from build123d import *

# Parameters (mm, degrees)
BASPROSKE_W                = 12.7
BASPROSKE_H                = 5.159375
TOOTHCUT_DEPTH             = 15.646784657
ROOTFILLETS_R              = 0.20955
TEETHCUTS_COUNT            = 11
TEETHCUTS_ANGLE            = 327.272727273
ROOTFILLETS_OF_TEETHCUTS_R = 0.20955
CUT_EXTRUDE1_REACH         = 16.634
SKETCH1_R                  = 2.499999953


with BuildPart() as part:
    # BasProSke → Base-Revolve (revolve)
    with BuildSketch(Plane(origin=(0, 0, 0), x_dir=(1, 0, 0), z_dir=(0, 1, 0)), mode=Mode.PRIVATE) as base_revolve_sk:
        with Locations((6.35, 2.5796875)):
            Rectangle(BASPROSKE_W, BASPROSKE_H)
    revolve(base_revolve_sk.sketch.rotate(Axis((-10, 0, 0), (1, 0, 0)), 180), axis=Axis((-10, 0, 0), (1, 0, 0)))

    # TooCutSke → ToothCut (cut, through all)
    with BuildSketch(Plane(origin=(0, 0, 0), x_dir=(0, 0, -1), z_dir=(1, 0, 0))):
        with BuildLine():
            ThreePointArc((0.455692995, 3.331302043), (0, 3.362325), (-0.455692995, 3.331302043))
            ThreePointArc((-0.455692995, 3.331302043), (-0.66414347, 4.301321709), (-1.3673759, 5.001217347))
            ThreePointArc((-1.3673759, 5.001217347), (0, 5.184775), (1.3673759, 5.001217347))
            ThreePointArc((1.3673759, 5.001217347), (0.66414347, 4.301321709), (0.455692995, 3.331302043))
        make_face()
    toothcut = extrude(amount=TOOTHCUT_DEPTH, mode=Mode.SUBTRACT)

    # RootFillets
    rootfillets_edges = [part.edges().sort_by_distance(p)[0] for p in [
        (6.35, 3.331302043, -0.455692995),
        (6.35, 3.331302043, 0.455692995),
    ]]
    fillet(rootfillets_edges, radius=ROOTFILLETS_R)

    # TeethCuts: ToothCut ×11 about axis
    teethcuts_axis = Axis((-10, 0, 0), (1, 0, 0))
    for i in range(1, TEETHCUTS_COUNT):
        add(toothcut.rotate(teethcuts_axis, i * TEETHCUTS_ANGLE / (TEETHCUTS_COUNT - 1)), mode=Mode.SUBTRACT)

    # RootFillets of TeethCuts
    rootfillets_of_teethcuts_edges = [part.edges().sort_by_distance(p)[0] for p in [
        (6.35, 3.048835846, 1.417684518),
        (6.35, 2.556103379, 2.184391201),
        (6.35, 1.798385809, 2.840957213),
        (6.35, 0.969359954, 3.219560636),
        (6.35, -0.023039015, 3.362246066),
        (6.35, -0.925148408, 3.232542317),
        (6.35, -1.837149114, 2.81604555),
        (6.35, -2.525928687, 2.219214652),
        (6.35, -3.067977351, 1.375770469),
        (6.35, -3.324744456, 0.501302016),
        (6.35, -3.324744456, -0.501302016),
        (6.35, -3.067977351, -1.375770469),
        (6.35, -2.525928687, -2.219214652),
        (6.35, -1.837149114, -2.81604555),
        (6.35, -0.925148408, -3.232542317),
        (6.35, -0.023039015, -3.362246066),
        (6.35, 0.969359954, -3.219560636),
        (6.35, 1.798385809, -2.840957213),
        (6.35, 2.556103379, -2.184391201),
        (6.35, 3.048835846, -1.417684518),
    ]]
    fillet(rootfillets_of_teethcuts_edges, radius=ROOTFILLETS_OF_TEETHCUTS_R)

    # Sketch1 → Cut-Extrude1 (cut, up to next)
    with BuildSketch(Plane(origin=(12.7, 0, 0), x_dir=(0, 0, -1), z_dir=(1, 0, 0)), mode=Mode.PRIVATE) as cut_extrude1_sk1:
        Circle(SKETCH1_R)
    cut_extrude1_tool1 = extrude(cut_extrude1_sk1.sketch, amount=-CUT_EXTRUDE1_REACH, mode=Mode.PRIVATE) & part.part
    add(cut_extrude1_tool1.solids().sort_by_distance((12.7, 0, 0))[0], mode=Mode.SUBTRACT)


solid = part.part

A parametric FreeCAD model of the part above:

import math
import FreeCAD as App
import Part
import Sketcher

V = App.Vector
Q = App.Units.Quantity


def edges_at(feature, points):
    """Names of the edges that pass closest to the given points."""
    edges = feature.Shape.Edges
    near = lambda p: min(range(len(edges)), key=lambda i: edges[i].distToShape(Part.Vertex(*p))[0])
    return sorted({f"Edge{near(p) + 1}" for p in points})


def add_polygon(sketch, points):
    """Adds a closed chain of lines whose ends are joined by coincident constraints."""
    first, n = sketch.GeometryCount, len(points)
    for a, b in zip(points, points[1:] + points[:1]):
        sketch.addGeometry(Part.LineSegment(App.Vector(*a, 0), App.Vector(*b, 0)), False)
    for i in range(n):
        sketch.addConstraint(Sketcher.Constraint("Coincident", first + i, 2, first + (i + 1) % n, 1))

doc = App.newDocument("Part")
params = doc.addObject("Spreadsheet::Sheet", "Params")
for row, (alias, value) in enumerate([
    ("sketch1_width", "0.5 in"),
    ("sketch1_height", "0.203125 in"),
    ("revolution_angle", "360 deg"),
    ("fillet_radius", "0.20955 mm"),
    ("fillet2_radius", "0.20955 mm"),
], start=1):
    params.set(f"A{row}", alias)
    params.set(f"B{row}", "=" + value)
    params.setAlias(f"B{row}", alias)

body = doc.addObject("PartDesign::Body", "Body")

# Sketch on XZ plane
sketch1 = doc.addObject("Sketcher::SketchObject", "Sketch")
body.addObject(sketch1)
sketch1.AttachmentSupport = (doc.XZ_Plane, [""])
sketch1.MapMode = "FlatFace"
add_polygon(sketch1, [(0, -5.159375), (0, 0), (12.7, 0), (12.7, -5.159375)])  # lines 0-3
sketch1.addConstraint(Sketcher.Constraint("Vertical", 0))
sketch1.addConstraint(Sketcher.Constraint("Horizontal", 1))
sketch1.addConstraint(Sketcher.Constraint("Vertical", 2))
sketch1.addConstraint(Sketcher.Constraint("Horizontal", 3))
sketch1.addConstraint(Sketcher.Constraint("Coincident", 0, 2, -1, 1))
sketch1.addConstraint(Sketcher.Constraint("DistanceX", 1, 1, 1, 2, Q("0.5 in")))
sketch1.addConstraint(Sketcher.Constraint("DistanceY", 0, 1, 0, 2, Q("0.203125 in")))
sketch1.setExpression("Constraints[9]", "Params.sketch1_width")
sketch1.setExpression("Constraints[10]", "Params.sketch1_height")
revolution = doc.addObject("PartDesign::Revolution", "Revolution")
body.addObject(revolution)
revolution.Profile = sketch1
revolution.ReferenceAxis = (sketch1, ["H_Axis"])
revolution.setExpression("Angle", "Params.revolution_angle")

# Sketch on YZ plane
sketch2 = doc.addObject("Sketcher::SketchObject", "Sketch001")
body.addObject(sketch2)
sketch2.AttachmentSupport = (doc.YZ_Plane, [""])
sketch2.MapMode = "FlatFace"
sketch2.addGeometry(Part.ArcOfCircle(Part.Circle(V(0, 0, 0), V(0, 0, 1), 3.362325), math.radians(-7.789218), math.radians(7.789218)), False)
sketch2.addGeometry(Part.ArcOfCircle(Part.Circle(V(3.464546, -2.196852, 0), V(0, 0, 1), 1.74625), math.radians(28.359628), math.radians(94.376094)), False)
sketch2.addGeometry(Part.ArcOfCircle(Part.Circle(V(0, 0, 0), V(0, 0, 1), 5.184775), math.radians(-15.291448), math.radians(15.291448)), False)
sketch2.addGeometry(Part.ArcOfCircle(Part.Circle(V(3.464546, 2.196852, 0), V(0, 0, 1), 1.74625), math.radians(-94.376094), math.radians(-28.359628)), False)
sketch2.addConstraint(Sketcher.Constraint("Coincident", 0, 1, 1, 2))
sketch2.addConstraint(Sketcher.Constraint("Coincident", 1, 1, 2, 1))
sketch2.addConstraint(Sketcher.Constraint("Coincident", 2, 2, 3, 2))
sketch2.addConstraint(Sketcher.Constraint("Coincident", 3, 1, 0, 2))
sketch2.addConstraint(Sketcher.Constraint("Coincident", 0, 3, -1, 1))
sketch2.addConstraint(Sketcher.Constraint("Coincident", 2, 3, -1, 1))
sketch2.addConstraint(Sketcher.Constraint("Equal", 1, 3))
sketch2.addConstraint(Sketcher.Constraint("Symmetric", 1, 3, 3, 3, -1))
sketch2.addConstraint(Sketcher.Constraint("Radius", 1, 1.74625))
sketch2.addConstraint(Sketcher.Constraint("Radius", 0, 3.362325))
sketch2.addConstraint(Sketcher.Constraint("Radius", 2, 5.184775))
sketch2.addConstraint(Sketcher.Constraint("DistanceY", 1, 3, 0, 1, 1.741159))
sketch2.addConstraint(Sketcher.Constraint("DistanceX", 1, 3, 1, 1, 1.536671))
pocket1 = doc.addObject("PartDesign::Pocket", "Pocket")
body.addObject(pocket1)
pocket1.Profile = sketch2
pocket1.Type = "ThroughAll"
pocket1.Reversed = True
doc.recompute()

fillet = doc.addObject("PartDesign::Fillet", "Fillet")
body.addObject(fillet)
fillet.Base = (pocket1, edges_at(pocket1, [(6.35, 3.331, -0.456), (6.35, 3.331, 0.456)]))
fillet.setExpression("Radius", "Params.fillet_radius")
doc.recompute()

polarpattern = doc.addObject("PartDesign::PolarPattern", "PolarPattern")
body.addObject(polarpattern)
polarpattern.Originals = [pocket1]
polarpattern.Axis = (doc.X_Axis, [""])
polarpattern.Angle = 360
polarpattern.Occurrences = 11
body.Tip = polarpattern
doc.recompute()

fillet2 = doc.addObject("PartDesign::Fillet", "Fillet001")
body.addObject(fillet2)
fillet2.Base = (polarpattern, edges_at(polarpattern, [
    (6.35, 3.049, 1.418),
    (6.35, 2.556, 2.184),
    (6.35, 1.798, 2.841),
    (6.35, 0.969, 3.22),
    (6.35, -0.023, 3.362),
    (6.35, -0.925, 3.233),
    (6.35, -1.837, 2.816),
    (6.35, -2.526, 2.219),
    (6.35, -3.068, 1.376),
    (6.35, -3.325, 0.501),
    (6.35, -3.325, -0.501),
    (6.35, -3.068, -1.376),
    (6.35, -2.526, -2.219),
    (6.35, -1.837, -2.816),
    (6.35, -0.925, -3.233),
    (6.35, -0.023, -3.362),
    (6.35, 0.969, -3.22),
    (6.35, 1.798, -2.841),
    (6.35, 2.556, -2.184),
    (6.35, 3.049, -1.418),
]))
fillet2.setExpression("Radius", "Params.fillet2_radius")

# Sketch on YZ plane
sketch3 = doc.addObject("Sketcher::SketchObject", "Sketch002")
body.addObject(sketch3)
sketch3.AttachmentSupport = (doc.YZ_Plane, [""])
sketch3.MapMode = "FlatFace"
sketch3.AttachmentOffset = App.Placement(V(0, 0, 0.5 * 25.4), App.Rotation())
sketch3.addGeometry(Part.Circle(V(0, 0, 0), V(0, 0, 1), 2.5), False)
sketch3.addConstraint(Sketcher.Constraint("Coincident", 0, 3, -1, 1))
sketch3.addConstraint(Sketcher.Constraint("Diameter", 0, 5.0))
pocket2 = doc.addObject("PartDesign::Pocket", "Pocket001")
body.addObject(pocket2)
pocket2.Profile = sketch3
pocket2.Type = "UpToFirst"

doc.recompute()
